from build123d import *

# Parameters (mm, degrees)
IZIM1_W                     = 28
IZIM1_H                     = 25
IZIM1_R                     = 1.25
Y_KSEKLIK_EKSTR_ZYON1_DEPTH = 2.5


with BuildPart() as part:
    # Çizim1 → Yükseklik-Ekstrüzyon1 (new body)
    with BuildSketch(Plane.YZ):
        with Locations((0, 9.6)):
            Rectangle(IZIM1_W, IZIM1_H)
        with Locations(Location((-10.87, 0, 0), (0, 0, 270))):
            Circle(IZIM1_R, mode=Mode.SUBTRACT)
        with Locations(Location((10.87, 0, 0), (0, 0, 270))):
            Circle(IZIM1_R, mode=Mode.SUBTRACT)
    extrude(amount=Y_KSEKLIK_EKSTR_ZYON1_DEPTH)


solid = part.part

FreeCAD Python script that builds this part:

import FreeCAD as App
import Part
import Sketcher

V = App.Vector
Q = App.Units.Quantity


def add_polygon(sketch, points):
    """Adds a closed chain of lines whose ends are joined by coincident constraints."""
    first, n = sketch.GeometryCount, len(points)
    for a, b in zip(points, points[1:] + points[:1]):
        sketch.addGeometry(Part.LineSegment(App.Vector(*a, 0), App.Vector(*b, 0)), False)
    for i in range(n):
        sketch.addConstraint(Sketcher.Constraint("Coincident", first + i, 2, first + (i + 1) % n, 1))

doc = App.newDocument("Part")
params = doc.addObject("Spreadsheet::Sheet", "Params")
for row, (alias, value) in enumerate([
    ("sketch1_diameter", "2.5 mm"),
    ("sketch1_width", "28 mm"),
    ("sketch1_height", "25 mm"),
    ("pad1_length", "2.5 mm"),
], start=1):
    params.set(f"A{row}", alias)
    params.set(f"B{row}", "=" + value)
    params.setAlias(f"B{row}", alias)

body = doc.addObject("PartDesign::Body", "Body")

# Sketch on YZ plane
sketch1 = doc.addObject("Sketcher::SketchObject", "Sketch")
body.addObject(sketch1)
sketch1.AttachmentSupport = (doc.YZ_Plane, [""])
sketch1.MapMode = "FlatFace"
add_polygon(sketch1, [(-14, 22.1), (-14, -2.9), (14, -2.9), (14, 22.1)])  # lines 0-3
sketch1.addGeometry(Part.Circle(V(-10.87, 0, 0), V(0, 0, 1), 1.25), False)  # 4
sketch1.addGeometry(Part.Circle(V(10.87, 0, 0), V(0, 0, 1), 1.25), False)  # 5
sketch1.addConstraint([
    Sketcher.Constraint("Vertical", 0),
    Sketcher.Constraint("Horizontal", 1),
    Sketcher.Constraint("Vertical", 2),
    Sketcher.Constraint("Horizontal", 3),
    Sketcher.Constraint("Equal", 4, 5),
    Sketcher.Constraint("Symmetric", 4, 3, 5, 3, -1, 1),
    Sketcher.Constraint("PointOnObject", 4, 3, -1),
    Sketcher.Constraint("Diameter", 4, Q("2.5 mm")),
    Sketcher.Constraint("DistanceX", 1, 1, 1, 2, Q("28 mm")),
    Sketcher.Constraint("DistanceY", 0, 2, 0, 1, Q("25 mm")),
    Sketcher.Constraint("DistanceX", 0, 2, -1, 1, Q("14 mm")),
    Sketcher.Constraint("DistanceY", 0, 2, -1, 1, Q("2.9 mm")),
    Sketcher.Constraint("DistanceX", 4, 3, -1, 1, Q("10.87 mm")),
])
sketch1.setExpression("Constraints[11]", "Params.sketch1_diameter")
sketch1.setExpression("Constraints[12]", "Params.sketch1_width")
sketch1.setExpression("Constraints[13]", "Params.sketch1_height")
pad1 = doc.addObject("PartDesign::Pad", "Pad")
body.addObject(pad1)
pad1.Profile = sketch1
pad1.setExpression("Length", "Params.pad1_length")

doc.recompute()
